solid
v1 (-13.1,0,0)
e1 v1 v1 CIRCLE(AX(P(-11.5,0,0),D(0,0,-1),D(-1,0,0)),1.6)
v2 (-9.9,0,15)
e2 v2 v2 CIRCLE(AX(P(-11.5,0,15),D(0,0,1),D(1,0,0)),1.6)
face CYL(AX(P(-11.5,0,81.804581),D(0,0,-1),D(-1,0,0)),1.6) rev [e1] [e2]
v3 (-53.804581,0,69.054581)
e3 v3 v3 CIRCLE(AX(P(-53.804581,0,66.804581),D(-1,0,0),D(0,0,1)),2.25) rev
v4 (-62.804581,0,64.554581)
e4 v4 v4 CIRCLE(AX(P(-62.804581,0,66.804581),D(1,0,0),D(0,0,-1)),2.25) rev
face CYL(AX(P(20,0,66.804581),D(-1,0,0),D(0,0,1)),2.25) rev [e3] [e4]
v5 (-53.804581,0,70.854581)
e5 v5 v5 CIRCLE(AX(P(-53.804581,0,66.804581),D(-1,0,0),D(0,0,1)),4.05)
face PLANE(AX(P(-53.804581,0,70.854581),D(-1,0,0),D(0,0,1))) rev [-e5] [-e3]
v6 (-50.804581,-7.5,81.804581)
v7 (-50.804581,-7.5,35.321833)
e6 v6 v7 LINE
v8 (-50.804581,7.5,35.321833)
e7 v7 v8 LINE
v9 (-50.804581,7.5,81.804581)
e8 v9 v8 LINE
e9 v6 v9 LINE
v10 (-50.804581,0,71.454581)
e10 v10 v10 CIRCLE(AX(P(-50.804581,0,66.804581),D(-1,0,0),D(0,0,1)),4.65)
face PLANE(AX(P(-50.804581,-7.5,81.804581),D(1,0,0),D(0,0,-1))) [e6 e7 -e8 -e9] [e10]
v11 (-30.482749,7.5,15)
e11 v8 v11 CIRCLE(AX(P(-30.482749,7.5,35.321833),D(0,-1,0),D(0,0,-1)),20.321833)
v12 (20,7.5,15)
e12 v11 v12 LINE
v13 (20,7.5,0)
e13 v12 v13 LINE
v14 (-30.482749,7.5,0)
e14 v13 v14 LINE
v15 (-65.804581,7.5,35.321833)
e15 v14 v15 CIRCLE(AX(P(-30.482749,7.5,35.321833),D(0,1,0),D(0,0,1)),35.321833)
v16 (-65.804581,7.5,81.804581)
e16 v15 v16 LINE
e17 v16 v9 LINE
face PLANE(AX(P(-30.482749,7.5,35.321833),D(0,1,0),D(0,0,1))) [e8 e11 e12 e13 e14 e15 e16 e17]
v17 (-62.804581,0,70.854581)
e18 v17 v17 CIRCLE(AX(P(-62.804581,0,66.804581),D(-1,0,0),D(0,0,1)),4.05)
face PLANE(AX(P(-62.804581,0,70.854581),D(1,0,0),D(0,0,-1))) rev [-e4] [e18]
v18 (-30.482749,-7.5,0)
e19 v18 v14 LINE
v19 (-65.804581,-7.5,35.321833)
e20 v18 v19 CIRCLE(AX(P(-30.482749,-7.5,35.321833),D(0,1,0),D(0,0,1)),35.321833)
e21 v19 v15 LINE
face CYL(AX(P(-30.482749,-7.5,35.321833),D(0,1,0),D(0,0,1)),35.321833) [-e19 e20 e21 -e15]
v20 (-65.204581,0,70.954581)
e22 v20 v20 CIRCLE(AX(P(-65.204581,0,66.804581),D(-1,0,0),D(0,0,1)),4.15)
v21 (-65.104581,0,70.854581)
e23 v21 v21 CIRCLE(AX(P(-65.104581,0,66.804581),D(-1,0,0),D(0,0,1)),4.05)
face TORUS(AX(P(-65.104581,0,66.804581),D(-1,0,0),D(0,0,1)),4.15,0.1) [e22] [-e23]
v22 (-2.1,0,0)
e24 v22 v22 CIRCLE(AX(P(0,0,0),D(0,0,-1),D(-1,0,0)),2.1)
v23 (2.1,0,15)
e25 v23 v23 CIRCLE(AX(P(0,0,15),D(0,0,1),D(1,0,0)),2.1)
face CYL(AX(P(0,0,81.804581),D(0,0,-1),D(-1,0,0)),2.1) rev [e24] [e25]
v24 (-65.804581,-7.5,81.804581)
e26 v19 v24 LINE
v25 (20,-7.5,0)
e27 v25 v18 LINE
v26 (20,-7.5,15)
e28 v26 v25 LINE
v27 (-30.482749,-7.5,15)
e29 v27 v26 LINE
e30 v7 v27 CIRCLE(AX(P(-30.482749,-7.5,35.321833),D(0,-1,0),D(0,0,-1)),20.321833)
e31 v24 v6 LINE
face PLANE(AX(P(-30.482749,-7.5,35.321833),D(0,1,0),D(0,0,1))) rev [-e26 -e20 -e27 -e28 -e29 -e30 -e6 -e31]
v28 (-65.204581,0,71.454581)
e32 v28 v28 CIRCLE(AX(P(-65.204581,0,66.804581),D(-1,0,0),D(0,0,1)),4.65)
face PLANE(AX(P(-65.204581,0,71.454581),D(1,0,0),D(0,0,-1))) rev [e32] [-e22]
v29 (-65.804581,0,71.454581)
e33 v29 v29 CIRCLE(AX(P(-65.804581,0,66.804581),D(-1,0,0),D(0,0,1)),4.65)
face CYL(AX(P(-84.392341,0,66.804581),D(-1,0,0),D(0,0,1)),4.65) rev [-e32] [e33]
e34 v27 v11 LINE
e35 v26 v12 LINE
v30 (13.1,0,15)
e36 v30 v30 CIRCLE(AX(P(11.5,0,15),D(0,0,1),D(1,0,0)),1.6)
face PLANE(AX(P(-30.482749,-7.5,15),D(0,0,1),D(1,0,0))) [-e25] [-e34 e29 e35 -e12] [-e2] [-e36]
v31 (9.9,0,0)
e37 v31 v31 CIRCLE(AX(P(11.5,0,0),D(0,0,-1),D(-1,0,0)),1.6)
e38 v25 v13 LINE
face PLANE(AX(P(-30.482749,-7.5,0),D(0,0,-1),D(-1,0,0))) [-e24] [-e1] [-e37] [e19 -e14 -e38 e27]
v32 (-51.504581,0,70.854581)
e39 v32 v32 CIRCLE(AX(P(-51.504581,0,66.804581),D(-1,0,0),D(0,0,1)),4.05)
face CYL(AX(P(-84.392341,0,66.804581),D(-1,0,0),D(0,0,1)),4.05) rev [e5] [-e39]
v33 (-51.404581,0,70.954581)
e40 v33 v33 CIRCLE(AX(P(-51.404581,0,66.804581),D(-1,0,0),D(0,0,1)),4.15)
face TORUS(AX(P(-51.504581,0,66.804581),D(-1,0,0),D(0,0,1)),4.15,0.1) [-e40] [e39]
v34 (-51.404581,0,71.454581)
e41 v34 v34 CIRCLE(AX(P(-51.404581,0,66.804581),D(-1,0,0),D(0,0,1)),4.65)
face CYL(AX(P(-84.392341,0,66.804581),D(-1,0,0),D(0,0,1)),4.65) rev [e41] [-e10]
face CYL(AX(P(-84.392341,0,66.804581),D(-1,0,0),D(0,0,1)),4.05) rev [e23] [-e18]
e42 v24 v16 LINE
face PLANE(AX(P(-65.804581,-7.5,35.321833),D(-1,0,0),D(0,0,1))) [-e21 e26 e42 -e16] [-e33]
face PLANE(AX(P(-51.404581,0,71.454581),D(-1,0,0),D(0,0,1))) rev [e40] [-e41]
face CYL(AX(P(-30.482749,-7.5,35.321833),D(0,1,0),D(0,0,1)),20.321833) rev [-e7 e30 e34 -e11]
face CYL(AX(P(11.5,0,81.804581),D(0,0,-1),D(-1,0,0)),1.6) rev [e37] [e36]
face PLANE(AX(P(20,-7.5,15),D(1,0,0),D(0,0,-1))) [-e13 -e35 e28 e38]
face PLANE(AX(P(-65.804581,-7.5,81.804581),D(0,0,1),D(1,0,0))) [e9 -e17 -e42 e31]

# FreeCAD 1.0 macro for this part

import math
import FreeCAD as App
import Part
import Sketcher
from FreeCAD import Vector

doc = App.newDocument("Part")
params = doc.addObject("Spreadsheet::Sheet", "Params")
for row, (alias, value) in enumerate([
    ("sketch1_width", "15 mm"),
    ("pad1_length", "7.5 mm"),
    ("pad1_length2", "7.5 mm"),
    ("sketch2_diameter", "4.5 mm"),
    ("sketch3_diameter", "4.2 mm"),
    ("sketch3_diameter2", "3.2 mm"),
    ("sketch4_radius", "0.1 mm"),
    ("sketch4_width", "3 mm"),
    ("sketch4_width2", "15 mm"),
    ("sketch4_width3", "0.6 mm"),
    ("sketch4_height", "0.5 mm"),
    ("groove_angle", "360 deg"),
], start=1):
    params.set(f"A{row}", alias)
    params.set(f"B{row}", "=" + value)
    params.setAlias(f"B{row}", alias)

body = doc.addObject("PartDesign::Body", "Body")

# Sketch on XZ plane
sketch1 = doc.addObject("Sketcher::SketchObject", "Sketch")
body.addObject(sketch1)
sketch1.AttachmentSupport = (doc.XZ_Plane, [""])
sketch1.MapMode = "FlatFace"
sketch1.addGeometry(Part.LineSegment(Vector(-66, 35, 0), Vector(-66, 82, 0)), False)
sketch1.addGeometry(Part.LineSegment(Vector(-66, 82, 0), Vector(-51, 82, 0)), False)
sketch1.addGeometry(Part.LineSegment(Vector(-51, 82, 0), Vector(-51, 35, 0)), False)
sketch1.addGeometry(Part.ArcOfCircle(Part.Circle(Vector(-30, 35, 0), Vector(0, 0, 1), 20), math.radians(-180), math.radians(-90)), False)
sketch1.addGeometry(Part.LineSegment(Vector(-30, 15, 0), Vector(20, 15, 0)), False)
sketch1.addGeometry(Part.LineSegment(Vector(20, 15, 0), Vector(20, 0, 0)), False)
sketch1.addGeometry(Part.LineSegment(Vector(20, 0, 0), Vector(-30, 0, 0)), False)
sketch1.addGeometry(Part.ArcOfCircle(Part.Circle(Vector(-30, 35, 0), Vector(0, 0, 1), 35), math.radians(180), math.radians(270)), False)
sketch1.addConstraint(Sketcher.Constraint("Coincident", 0, 2, 1, 1))
sketch1.addConstraint(Sketcher.Constraint("Coincident", 1, 2, 2, 1))
sketch1.addConstraint(Sketcher.Constraint("Tangent", 2, 2, 3, 1))
sketch1.addConstraint(Sketcher.Constraint("Tangent", 3, 2, 4, 1))
sketch1.addConstraint(Sketcher.Constraint("Coincident", 4, 2, 5, 1))
sketch1.addConstraint(Sketcher.Constraint("Coincident", 5, 2, 6, 1))
sketch1.addConstraint(Sketcher.Constraint("Tangent", 6, 2, 7, 2))
sketch1.addConstraint(Sketcher.Constraint("Tangent", 7, 1, 0, 1))
sketch1.addConstraint(Sketcher.Constraint("Vertical", 0))
sketch1.addConstraint(Sketcher.Constraint("Horizontal", 1))
sketch1.addConstraint(Sketcher.Constraint("Vertical", 2))
sketch1.addConstraint(Sketcher.Constraint("Horizontal", 4))
sketch1.addConstraint(Sketcher.Constraint("Vertical", 5))
sketch1.addConstraint(Sketcher.Constraint("Horizontal", 6))
sketch1.addConstraint(Sketcher.Constraint("Coincident", 7, 3, 3, 3))
sketch1.addConstraint(Sketcher.Constraint("PointOnObject", 5, 2, -1))
sketch1.addConstraint(Sketcher.Constraint("DistanceX", 1, 1, 1, 2, 15.0))
sketch1.addConstraint(Sketcher.Constraint("DistanceX", -1, 1, 4, 2, 20.0))
sketch1.addConstraint(Sketcher.Constraint("Radius", 3, 20.321833))
sketch1.addConstraint(Sketcher.Constraint("DistanceX", 4, 1, 4, 2, 50.482749))
sketch1.addConstraint(Sketcher.Constraint("DistanceY", 0, 1, 0, 2, 46.482749))
sketch1.setExpression("Constraints[16]", "Params.sketch1_width")
pad1 = doc.addObject("PartDesign::Pad", "Pad")
body.addObject(pad1)
pad1.Profile = sketch1
pad1.Type = "TwoLengths"
pad1.setExpression("Length", "Params.pad1_length")
pad1.setExpression("Length2", "Params.pad1_length2")
pad1.Reversed = True

# Sketch on YZ plane
sketch2 = doc.addObject("Sketcher::SketchObject", "Sketch001")
body.addObject(sketch2)
sketch2.AttachmentSupport = (doc.YZ_Plane, [""])
sketch2.MapMode = "FlatFace"
sketch2.AttachmentOffset = App.Placement(Vector(0, 0, -50.804581), App.Rotation())
sketch2.addGeometry(Part.Circle(Vector(0, 66.8, 0), Vector(0, 0, 1), 2.2), False)
sketch2.addConstraint(Sketcher.Constraint("PointOnObject", 0, 3, -2))
sketch2.addConstraint(Sketcher.Constraint("Diameter", 0, 4.5))
sketch2.addConstraint(Sketcher.Constraint("DistanceY", -1, 1, 0, 3, 66.804581))
sketch2.setExpression("Constraints[1]", "Params.sketch2_diameter")
pocket1 = doc.addObject("PartDesign::Pocket", "Pocket")
body.addObject(pocket1)
pocket1.Profile = sketch2
pocket1.Type = "ThroughAll"
pocket1.Midplane = True

# Sketch on XY plane
sketch3 = doc.addObject("Sketcher::SketchObject", "Sketch002")
body.addObject(sketch3)
sketch3.AttachmentSupport = (doc.XY_Plane, [""])
sketch3.MapMode = "FlatFace"
sketch3.addGeometry(Part.Circle(Vector(0, 0, 0), Vector(0, 0, 1), 2.1), False)
sketch3.addGeometry(Part.Circle(Vector(11.5, 0, 0), Vector(0, 0, 1), 1.6), False)
sketch3.addGeometry(Part.Circle(Vector(-11.5, 0, 0), Vector(0, 0, 1), 1.6), False)
sketch3.addConstraint(Sketcher.Constraint("Coincident", 0, 3, -1, 1))
sketch3.addConstraint(Sketcher.Constraint("Equal", 1, 2))
sketch3.addConstraint(Sketcher.Constraint("Symmetric", 1, 3, 2, 3, -1, 1))
sketch3.addConstraint(Sketcher.Constraint("PointOnObject", 1, 3, -1))
sketch3.addConstraint(Sketcher.Constraint("Diameter", 0, 4.2))
sketch3.addConstraint(Sketcher.Constraint("Diameter", 1, 3.2))
sketch3.addConstraint(Sketcher.Constraint("DistanceX", 2, 3, 1, 3, 23.0))
sketch3.setExpression("Constraints[4]", "Params.sketch3_diameter")
sketch3.setExpression("Constraints[5]", "Params.sketch3_diameter2")
pocket2 = doc.addObject("PartDesign::Pocket", "Pocket001")
body.addObject(pocket2)
pocket2.Profile = sketch3
pocket2.Type = "ThroughAll"
pocket2.Reversed = True

# Sketch on XZ plane
sketch4 = doc.addObject("Sketcher::SketchObject", "Sketch003")
body.addObject(sketch4)
sketch4.AttachmentSupport = (doc.XZ_Plane, [""])
sketch4.MapMode = "FlatFace"
sketch4.addGeometry(Part.LineSegment(Vector(-65.8, 71.45, 0), Vector(-65.2, 71.45, 0)), False)
sketch4.addGeometry(Part.LineSegment(Vector(-65.2, 71.45, 0), Vector(-65.2, 70.95, 0)), False)
sketch4.addGeometry(Part.ArcOfCircle(Part.Circle(Vector(-65.1, 70.95, 0), Vector(0, 0, 1), 0.1), math.radians(180), math.radians(270)), False)
sketch4.addGeometry(Part.LineSegment(Vector(-65.1, 70.85, 0), Vector(-62.8, 70.85, 0)), False)
sketch4.addGeometry(Part.LineSegment(Vector(-62.8, 70.85, 0), Vector(-62.8, 66.8, 0)), False)
sketch4.addGeometry(Part.LineSegment(Vector(-62.8, 66.8, 0), Vector(-65.8, 66.8, 0)), False)
sketch4.addGeometry(Part.LineSegment(Vector(-65.8, 66.8, 0), Vector(-65.8, 71.45, 0)), False)
sketch4.addGeometry(Part.LineSegment(Vector(-50.8, 66.8, 0), Vector(-53.8, 66.8, 0)), False)
sketch4.addGeometry(Part.LineSegment(Vector(-53.8, 66.8, 0), Vector(-53.8, 70.85, 0)), False)
sketch4.addGeometry(Part.LineSegment(Vector(-53.8, 70.85, 0), Vector(-51.5, 70.85, 0)), False)
sketch4.addGeometry(Part.ArcOfCircle(Part.Circle(Vector(-51.5, 70.95, 0), Vector(0, 0, 1), 0.1), math.radians(-90), math.radians(0)), False)
sketch4.addGeometry(Part.LineSegment(Vector(-51.4, 70.95, 0), Vector(-51.4, 71.45, 0)), False)
sketch4.addGeometry(Part.LineSegment(Vector(-51.4, 71.45, 0), Vector(-50.8, 71.45, 0)), False)
sketch4.addGeometry(Part.LineSegment(Vector(-50.8, 71.45, 0), Vector(-50.8, 66.8, 0)), False)
sketch4.addGeometry(Part.LineSegment(Vector(-65.8, 66.8, 0), Vector(-50.8, 66.8, 0)), True)  # axis
sketch4.addConstraint(Sketcher.Constraint("Coincident", 0, 2, 1, 1))
sketch4.addConstraint(Sketcher.Constraint("Tangent", 1, 2, 2, 1))
sketch4.addConstraint(Sketcher.Constraint("Tangent", 2, 2, 3, 1))
sketch4.addConstraint(Sketcher.Constraint("Coincident", 3, 2, 4, 1))
sketch4.addConstraint(Sketcher.Constraint("Coincident", 4, 2, 5, 1))
sketch4.addConstraint(Sketcher.Constraint("Coincident", 5, 2, 6, 1))
sketch4.addConstraint(Sketcher.Constraint("Coincident", 6, 2, 0, 1))
sketch4.addConstraint(Sketcher.Constraint("Coincident", 7, 2, 8, 1))
sketch4.addConstraint(Sketcher.Constraint("Coincident", 8, 2, 9, 1))
sketch4.addConstraint(Sketcher.Constraint("Tangent", 9, 2, 10, 1))
sketch4.addConstraint(Sketcher.Constraint("Tangent", 10, 2, 11, 1))
sketch4.addConstraint(Sketcher.Constraint("Coincident", 11, 2, 12, 1))
sketch4.addConstraint(Sketcher.Constraint("Coincident", 12, 2, 13, 1))
sketch4.addConstraint(Sketcher.Constraint("Coincident", 13, 2, 7, 1))
sketch4.addConstraint(Sketcher.Constraint("Horizontal", 0))
sketch4.addConstraint(Sketcher.Constraint("Vertical", 1))
sketch4.addConstraint(Sketcher.Constraint("Horizontal", 3))
sketch4.addConstraint(Sketcher.Constraint("Vertical", 4))
sketch4.addConstraint(Sketcher.Constraint("Horizontal", 5))
sketch4.addConstraint(Sketcher.Constraint("Vertical", 6))
sketch4.addConstraint(Sketcher.Constraint("Horizontal", 7))
sketch4.addConstraint(Sketcher.Constraint("Vertical", 8))
sketch4.addConstraint(Sketcher.Constraint("Horizontal", 9))
sketch4.addConstraint(Sketcher.Constraint("Vertical", 11))
sketch4.addConstraint(Sketcher.Constraint("Horizontal", 12))
sketch4.addConstraint(Sketcher.Constraint("Vertical", 13))
sketch4.addConstraint(Sketcher.Constraint("Horizontal", 14))
sketch4.addConstraint(Sketcher.Constraint("Coincident", 14, 1, 5, 2))
sketch4.addConstraint(Sketcher.Constraint("Coincident", 14, 2, 13, 2))
sketch4.addConstraint(Sketcher.Constraint("Equal", 2, 10))
sketch4.addConstraint(Sketcher.Constraint("Horizontal", 2, 3, 10, 3))
sketch4.addConstraint(Sketcher.Constraint("Horizontal", 6, 2, 11, 2))
sketch4.addConstraint(Sketcher.Constraint("Equal", 5, 7))
sketch4.addConstraint(Sketcher.Constraint("Equal", 3, 9))
sketch4.addConstraint(Sketcher.Constraint("Radius", 2, 0.1))
sketch4.addConstraint(Sketcher.Constraint("DistanceX", 5, 2, 5, 1, 3.0))
sketch4.addConstraint(Sketcher.Constraint("DistanceX", 14, 1, 14, 2, 15.0))
sketch4.addConstraint(Sketcher.Constraint("DistanceX", 0, 1, 0, 2, 0.6))
sketch4.addConstraint(Sketcher.Constraint("DistanceY", 1, 2, 1, 1, 0.5))
sketch4.addConstraint(Sketcher.Constraint("DistanceY", 4, 2, 4, 1, 4.05))
sketch4.addConstraint(Sketcher.Constraint("DistanceX", 2, 3, -1, 1, 65.104581))
sketch4.addConstraint(Sketcher.Constraint("DistanceY", -1, 1, 2, 3, 70.954581))
sketch4.setExpression("Constraints[34]", "Params.sketch4_radius")
sketch4.setExpression("Constraints[35]", "Params.sketch4_width")
sketch4.setExpression("Constraints[36]", "Params.sketch4_width2")
sketch4.setExpression("Constraints[37]", "Params.sketch4_width3")
sketch4.setExpression("Constraints[38]", "Params.sketch4_height")
groove = doc.addObject("PartDesign::Groove", "Groove")
body.addObject(groove)
groove.Profile = sketch4
groove.ReferenceAxis = (sketch4, ["Axis0"])
groove.setExpression("Angle", "Params.groove_angle")

doc.recompute()
